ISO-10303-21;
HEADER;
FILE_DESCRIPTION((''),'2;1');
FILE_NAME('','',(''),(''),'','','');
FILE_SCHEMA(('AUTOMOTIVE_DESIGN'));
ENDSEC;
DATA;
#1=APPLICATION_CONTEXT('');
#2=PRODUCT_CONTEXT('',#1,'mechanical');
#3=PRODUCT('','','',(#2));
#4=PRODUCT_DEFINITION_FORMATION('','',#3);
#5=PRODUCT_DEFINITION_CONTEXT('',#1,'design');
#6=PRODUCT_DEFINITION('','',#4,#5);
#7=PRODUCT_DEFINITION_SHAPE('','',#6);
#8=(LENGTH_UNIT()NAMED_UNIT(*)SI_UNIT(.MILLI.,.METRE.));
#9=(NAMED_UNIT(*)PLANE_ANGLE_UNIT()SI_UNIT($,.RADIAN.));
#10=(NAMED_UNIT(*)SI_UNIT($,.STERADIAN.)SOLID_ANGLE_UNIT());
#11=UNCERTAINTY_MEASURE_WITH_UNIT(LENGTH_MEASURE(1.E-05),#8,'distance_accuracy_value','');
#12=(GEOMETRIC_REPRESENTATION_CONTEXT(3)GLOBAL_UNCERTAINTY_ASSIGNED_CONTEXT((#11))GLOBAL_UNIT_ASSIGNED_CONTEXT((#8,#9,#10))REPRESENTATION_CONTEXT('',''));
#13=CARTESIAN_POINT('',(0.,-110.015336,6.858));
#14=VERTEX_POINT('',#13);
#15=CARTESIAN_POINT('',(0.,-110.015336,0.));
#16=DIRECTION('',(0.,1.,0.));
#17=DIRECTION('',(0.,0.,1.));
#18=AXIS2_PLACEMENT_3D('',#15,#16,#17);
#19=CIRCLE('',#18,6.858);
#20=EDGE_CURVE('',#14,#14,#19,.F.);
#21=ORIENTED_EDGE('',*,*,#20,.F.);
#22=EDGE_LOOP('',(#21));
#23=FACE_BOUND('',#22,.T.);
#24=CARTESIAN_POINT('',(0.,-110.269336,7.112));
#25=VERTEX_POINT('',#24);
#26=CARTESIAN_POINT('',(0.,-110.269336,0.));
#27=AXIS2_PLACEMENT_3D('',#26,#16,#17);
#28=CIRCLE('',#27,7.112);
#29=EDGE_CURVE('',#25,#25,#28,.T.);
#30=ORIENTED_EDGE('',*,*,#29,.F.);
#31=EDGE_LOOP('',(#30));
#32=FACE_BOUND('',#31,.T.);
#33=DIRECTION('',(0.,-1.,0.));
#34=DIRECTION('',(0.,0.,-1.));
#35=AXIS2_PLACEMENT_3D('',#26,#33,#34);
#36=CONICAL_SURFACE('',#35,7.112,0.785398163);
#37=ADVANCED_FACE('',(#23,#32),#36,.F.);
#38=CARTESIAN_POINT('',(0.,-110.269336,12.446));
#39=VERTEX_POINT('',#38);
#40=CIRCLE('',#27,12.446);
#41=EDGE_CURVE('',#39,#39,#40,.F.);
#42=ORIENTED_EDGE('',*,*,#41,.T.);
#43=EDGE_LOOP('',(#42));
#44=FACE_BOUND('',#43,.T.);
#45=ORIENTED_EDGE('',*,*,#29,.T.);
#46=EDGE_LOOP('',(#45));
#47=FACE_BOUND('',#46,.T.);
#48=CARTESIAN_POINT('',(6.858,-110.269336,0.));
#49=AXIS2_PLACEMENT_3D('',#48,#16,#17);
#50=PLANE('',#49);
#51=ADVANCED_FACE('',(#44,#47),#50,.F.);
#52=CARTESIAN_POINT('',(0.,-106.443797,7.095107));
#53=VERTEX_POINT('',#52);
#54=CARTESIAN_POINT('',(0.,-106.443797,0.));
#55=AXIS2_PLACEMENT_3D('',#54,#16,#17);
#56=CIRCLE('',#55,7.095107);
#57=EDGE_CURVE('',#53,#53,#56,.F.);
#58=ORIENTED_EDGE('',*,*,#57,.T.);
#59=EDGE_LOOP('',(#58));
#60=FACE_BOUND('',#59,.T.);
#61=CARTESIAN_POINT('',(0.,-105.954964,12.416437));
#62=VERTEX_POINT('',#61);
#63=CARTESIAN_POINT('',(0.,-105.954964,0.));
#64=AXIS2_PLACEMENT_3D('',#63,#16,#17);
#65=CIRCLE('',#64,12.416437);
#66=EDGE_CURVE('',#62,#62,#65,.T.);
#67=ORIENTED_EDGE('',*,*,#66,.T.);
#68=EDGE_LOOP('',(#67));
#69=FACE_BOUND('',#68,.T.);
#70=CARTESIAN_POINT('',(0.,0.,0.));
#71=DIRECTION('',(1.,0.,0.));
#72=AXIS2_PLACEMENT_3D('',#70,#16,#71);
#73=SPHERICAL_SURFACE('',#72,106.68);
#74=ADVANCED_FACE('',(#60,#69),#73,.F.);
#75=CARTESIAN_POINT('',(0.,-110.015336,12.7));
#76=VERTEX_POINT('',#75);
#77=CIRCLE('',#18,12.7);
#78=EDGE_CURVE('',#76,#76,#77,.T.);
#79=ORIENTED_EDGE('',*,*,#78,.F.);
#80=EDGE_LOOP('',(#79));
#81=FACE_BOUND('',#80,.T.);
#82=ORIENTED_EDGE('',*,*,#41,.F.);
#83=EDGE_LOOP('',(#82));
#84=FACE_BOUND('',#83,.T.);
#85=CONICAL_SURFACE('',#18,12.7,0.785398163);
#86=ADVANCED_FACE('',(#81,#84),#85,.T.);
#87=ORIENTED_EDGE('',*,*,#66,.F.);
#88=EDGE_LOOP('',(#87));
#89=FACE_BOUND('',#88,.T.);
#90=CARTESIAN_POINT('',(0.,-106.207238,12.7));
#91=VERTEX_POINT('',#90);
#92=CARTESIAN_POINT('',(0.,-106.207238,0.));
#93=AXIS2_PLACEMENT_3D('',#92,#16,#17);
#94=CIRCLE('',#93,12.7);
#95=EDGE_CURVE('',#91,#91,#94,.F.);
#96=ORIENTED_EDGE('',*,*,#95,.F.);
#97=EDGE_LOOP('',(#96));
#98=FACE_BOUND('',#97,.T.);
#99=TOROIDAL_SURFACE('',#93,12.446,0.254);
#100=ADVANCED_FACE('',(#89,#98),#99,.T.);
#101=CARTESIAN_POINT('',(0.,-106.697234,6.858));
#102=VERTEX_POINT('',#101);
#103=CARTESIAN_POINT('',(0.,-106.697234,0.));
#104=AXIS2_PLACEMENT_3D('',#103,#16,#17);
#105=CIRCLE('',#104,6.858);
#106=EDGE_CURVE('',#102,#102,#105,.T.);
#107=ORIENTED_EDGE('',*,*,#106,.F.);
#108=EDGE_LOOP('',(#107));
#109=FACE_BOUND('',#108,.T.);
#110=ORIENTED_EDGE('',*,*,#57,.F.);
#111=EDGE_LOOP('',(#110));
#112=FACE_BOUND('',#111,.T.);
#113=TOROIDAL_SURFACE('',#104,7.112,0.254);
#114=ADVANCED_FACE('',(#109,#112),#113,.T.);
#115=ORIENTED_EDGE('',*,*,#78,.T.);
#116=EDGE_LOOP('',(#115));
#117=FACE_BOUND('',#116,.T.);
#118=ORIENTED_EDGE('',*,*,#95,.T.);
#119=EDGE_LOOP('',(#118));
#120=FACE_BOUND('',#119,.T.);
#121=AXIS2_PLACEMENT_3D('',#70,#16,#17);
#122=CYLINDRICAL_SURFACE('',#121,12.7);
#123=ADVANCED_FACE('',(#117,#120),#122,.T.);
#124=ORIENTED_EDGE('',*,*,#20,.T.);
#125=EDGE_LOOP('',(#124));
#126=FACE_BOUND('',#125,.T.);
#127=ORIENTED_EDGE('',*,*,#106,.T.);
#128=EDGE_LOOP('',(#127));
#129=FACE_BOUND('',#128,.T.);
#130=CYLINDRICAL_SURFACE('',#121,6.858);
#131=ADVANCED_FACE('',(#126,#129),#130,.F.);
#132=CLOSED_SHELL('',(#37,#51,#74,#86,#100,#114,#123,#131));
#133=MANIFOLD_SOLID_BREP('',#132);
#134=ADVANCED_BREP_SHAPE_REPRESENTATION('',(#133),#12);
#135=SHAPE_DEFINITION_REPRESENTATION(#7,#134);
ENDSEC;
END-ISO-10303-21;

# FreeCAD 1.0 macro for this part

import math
import FreeCAD as App
import Part
import Sketcher
from FreeCAD import Vector
Q = App.Units.Quantity


def edges_at(feature, points):
    """Names of the edges that pass closest to the given points."""
    edges = feature.Shape.Edges
    near = lambda p: min(range(len(edges)), key=lambda i: edges[i].distToShape(Part.Vertex(*p))[0])
    return sorted({f"Edge{near(p) + 1}" for p in points})

doc = App.newDocument("Part")
body = doc.addObject("PartDesign::Body", "Body")

sketch1 = body.newObject("Sketcher::SketchObject", "Sketch")
sketch1.AttachmentSupport = (doc.getObject("XY_Plane"), [""])
sketch1.MapMode = "FlatFace"
sketch1.addGeometry(Part.LineSegment(Vector(6.9, -110.3, 0), Vector(12.7, -110.3, 0)), False)
sketch1.addGeometry(Part.LineSegment(Vector(12.7, -110.3, 0), Vector(12.7, -105.9, 0)), False)
sketch1.addGeometry(Part.ArcOfCircle(Part.Circle(Vector(0, 0, 0), Vector(0, 0, 1), 106.7), math.radians(-86.31), math.radians(-83.16)), False)
sketch1.addGeometry(Part.LineSegment(Vector(6.9, -106.5, 0), Vector(6.9, -110.3, 0)), False)
sketch1.addConstraint(Sketcher.Constraint("Coincident", 0, 2, 1, 1))
sketch1.addConstraint(Sketcher.Constraint("Coincident", 1, 2, 2, 2))
sketch1.addConstraint(Sketcher.Constraint("Coincident", 2, 1, 3, 1))
sketch1.addConstraint(Sketcher.Constraint("Coincident", 3, 2, 0, 1))
sketch1.addConstraint(Sketcher.Constraint("Horizontal", 0))
sketch1.addConstraint(Sketcher.Constraint("Vertical", 1))
sketch1.addConstraint(Sketcher.Constraint("Vertical", 3))
sketch1.addConstraint(Sketcher.Constraint("Coincident", 2, 3, -1, 1))
sketch1.addConstraint(Sketcher.Constraint("Radius", 2, Q("4.2 in")))
sketch1.addConstraint(Sketcher.Constraint("DistanceX", 0, 1, 0, 2, Q("0.23 in")))
sketch1.addConstraint(Sketcher.Constraint("DistanceY", 3, 2, 3, 1, Q("0.15 in")))
sketch1.addConstraint(Sketcher.Constraint("DistanceX", -1, 1, 0, 2, Q("0.5 in")))
revolution = body.newObject("PartDesign::Revolution", "Revolution")
revolution.Profile = sketch1
revolution.ReferenceAxis = (sketch1, ["V_Axis"])
revolution.Angle = 360
doc.recompute()

fillet = body.newObject("PartDesign::Fillet", "Fillet")
fillet.Base = (revolution, edges_at(revolution, [(0, -106.459, -6.858), (0, -105.921, -12.7)]))
fillet.Radius = Q("0.01 in")
doc.recompute()

chamfer = body.newObject("PartDesign::Chamfer", "Chamfer")
chamfer.Base = (fillet, edges_at(fillet, [(0, -110.269, -12.7), (0, -110.269, -6.858)]))
chamfer.Size = Q("0.01 in")

doc.recompute()
